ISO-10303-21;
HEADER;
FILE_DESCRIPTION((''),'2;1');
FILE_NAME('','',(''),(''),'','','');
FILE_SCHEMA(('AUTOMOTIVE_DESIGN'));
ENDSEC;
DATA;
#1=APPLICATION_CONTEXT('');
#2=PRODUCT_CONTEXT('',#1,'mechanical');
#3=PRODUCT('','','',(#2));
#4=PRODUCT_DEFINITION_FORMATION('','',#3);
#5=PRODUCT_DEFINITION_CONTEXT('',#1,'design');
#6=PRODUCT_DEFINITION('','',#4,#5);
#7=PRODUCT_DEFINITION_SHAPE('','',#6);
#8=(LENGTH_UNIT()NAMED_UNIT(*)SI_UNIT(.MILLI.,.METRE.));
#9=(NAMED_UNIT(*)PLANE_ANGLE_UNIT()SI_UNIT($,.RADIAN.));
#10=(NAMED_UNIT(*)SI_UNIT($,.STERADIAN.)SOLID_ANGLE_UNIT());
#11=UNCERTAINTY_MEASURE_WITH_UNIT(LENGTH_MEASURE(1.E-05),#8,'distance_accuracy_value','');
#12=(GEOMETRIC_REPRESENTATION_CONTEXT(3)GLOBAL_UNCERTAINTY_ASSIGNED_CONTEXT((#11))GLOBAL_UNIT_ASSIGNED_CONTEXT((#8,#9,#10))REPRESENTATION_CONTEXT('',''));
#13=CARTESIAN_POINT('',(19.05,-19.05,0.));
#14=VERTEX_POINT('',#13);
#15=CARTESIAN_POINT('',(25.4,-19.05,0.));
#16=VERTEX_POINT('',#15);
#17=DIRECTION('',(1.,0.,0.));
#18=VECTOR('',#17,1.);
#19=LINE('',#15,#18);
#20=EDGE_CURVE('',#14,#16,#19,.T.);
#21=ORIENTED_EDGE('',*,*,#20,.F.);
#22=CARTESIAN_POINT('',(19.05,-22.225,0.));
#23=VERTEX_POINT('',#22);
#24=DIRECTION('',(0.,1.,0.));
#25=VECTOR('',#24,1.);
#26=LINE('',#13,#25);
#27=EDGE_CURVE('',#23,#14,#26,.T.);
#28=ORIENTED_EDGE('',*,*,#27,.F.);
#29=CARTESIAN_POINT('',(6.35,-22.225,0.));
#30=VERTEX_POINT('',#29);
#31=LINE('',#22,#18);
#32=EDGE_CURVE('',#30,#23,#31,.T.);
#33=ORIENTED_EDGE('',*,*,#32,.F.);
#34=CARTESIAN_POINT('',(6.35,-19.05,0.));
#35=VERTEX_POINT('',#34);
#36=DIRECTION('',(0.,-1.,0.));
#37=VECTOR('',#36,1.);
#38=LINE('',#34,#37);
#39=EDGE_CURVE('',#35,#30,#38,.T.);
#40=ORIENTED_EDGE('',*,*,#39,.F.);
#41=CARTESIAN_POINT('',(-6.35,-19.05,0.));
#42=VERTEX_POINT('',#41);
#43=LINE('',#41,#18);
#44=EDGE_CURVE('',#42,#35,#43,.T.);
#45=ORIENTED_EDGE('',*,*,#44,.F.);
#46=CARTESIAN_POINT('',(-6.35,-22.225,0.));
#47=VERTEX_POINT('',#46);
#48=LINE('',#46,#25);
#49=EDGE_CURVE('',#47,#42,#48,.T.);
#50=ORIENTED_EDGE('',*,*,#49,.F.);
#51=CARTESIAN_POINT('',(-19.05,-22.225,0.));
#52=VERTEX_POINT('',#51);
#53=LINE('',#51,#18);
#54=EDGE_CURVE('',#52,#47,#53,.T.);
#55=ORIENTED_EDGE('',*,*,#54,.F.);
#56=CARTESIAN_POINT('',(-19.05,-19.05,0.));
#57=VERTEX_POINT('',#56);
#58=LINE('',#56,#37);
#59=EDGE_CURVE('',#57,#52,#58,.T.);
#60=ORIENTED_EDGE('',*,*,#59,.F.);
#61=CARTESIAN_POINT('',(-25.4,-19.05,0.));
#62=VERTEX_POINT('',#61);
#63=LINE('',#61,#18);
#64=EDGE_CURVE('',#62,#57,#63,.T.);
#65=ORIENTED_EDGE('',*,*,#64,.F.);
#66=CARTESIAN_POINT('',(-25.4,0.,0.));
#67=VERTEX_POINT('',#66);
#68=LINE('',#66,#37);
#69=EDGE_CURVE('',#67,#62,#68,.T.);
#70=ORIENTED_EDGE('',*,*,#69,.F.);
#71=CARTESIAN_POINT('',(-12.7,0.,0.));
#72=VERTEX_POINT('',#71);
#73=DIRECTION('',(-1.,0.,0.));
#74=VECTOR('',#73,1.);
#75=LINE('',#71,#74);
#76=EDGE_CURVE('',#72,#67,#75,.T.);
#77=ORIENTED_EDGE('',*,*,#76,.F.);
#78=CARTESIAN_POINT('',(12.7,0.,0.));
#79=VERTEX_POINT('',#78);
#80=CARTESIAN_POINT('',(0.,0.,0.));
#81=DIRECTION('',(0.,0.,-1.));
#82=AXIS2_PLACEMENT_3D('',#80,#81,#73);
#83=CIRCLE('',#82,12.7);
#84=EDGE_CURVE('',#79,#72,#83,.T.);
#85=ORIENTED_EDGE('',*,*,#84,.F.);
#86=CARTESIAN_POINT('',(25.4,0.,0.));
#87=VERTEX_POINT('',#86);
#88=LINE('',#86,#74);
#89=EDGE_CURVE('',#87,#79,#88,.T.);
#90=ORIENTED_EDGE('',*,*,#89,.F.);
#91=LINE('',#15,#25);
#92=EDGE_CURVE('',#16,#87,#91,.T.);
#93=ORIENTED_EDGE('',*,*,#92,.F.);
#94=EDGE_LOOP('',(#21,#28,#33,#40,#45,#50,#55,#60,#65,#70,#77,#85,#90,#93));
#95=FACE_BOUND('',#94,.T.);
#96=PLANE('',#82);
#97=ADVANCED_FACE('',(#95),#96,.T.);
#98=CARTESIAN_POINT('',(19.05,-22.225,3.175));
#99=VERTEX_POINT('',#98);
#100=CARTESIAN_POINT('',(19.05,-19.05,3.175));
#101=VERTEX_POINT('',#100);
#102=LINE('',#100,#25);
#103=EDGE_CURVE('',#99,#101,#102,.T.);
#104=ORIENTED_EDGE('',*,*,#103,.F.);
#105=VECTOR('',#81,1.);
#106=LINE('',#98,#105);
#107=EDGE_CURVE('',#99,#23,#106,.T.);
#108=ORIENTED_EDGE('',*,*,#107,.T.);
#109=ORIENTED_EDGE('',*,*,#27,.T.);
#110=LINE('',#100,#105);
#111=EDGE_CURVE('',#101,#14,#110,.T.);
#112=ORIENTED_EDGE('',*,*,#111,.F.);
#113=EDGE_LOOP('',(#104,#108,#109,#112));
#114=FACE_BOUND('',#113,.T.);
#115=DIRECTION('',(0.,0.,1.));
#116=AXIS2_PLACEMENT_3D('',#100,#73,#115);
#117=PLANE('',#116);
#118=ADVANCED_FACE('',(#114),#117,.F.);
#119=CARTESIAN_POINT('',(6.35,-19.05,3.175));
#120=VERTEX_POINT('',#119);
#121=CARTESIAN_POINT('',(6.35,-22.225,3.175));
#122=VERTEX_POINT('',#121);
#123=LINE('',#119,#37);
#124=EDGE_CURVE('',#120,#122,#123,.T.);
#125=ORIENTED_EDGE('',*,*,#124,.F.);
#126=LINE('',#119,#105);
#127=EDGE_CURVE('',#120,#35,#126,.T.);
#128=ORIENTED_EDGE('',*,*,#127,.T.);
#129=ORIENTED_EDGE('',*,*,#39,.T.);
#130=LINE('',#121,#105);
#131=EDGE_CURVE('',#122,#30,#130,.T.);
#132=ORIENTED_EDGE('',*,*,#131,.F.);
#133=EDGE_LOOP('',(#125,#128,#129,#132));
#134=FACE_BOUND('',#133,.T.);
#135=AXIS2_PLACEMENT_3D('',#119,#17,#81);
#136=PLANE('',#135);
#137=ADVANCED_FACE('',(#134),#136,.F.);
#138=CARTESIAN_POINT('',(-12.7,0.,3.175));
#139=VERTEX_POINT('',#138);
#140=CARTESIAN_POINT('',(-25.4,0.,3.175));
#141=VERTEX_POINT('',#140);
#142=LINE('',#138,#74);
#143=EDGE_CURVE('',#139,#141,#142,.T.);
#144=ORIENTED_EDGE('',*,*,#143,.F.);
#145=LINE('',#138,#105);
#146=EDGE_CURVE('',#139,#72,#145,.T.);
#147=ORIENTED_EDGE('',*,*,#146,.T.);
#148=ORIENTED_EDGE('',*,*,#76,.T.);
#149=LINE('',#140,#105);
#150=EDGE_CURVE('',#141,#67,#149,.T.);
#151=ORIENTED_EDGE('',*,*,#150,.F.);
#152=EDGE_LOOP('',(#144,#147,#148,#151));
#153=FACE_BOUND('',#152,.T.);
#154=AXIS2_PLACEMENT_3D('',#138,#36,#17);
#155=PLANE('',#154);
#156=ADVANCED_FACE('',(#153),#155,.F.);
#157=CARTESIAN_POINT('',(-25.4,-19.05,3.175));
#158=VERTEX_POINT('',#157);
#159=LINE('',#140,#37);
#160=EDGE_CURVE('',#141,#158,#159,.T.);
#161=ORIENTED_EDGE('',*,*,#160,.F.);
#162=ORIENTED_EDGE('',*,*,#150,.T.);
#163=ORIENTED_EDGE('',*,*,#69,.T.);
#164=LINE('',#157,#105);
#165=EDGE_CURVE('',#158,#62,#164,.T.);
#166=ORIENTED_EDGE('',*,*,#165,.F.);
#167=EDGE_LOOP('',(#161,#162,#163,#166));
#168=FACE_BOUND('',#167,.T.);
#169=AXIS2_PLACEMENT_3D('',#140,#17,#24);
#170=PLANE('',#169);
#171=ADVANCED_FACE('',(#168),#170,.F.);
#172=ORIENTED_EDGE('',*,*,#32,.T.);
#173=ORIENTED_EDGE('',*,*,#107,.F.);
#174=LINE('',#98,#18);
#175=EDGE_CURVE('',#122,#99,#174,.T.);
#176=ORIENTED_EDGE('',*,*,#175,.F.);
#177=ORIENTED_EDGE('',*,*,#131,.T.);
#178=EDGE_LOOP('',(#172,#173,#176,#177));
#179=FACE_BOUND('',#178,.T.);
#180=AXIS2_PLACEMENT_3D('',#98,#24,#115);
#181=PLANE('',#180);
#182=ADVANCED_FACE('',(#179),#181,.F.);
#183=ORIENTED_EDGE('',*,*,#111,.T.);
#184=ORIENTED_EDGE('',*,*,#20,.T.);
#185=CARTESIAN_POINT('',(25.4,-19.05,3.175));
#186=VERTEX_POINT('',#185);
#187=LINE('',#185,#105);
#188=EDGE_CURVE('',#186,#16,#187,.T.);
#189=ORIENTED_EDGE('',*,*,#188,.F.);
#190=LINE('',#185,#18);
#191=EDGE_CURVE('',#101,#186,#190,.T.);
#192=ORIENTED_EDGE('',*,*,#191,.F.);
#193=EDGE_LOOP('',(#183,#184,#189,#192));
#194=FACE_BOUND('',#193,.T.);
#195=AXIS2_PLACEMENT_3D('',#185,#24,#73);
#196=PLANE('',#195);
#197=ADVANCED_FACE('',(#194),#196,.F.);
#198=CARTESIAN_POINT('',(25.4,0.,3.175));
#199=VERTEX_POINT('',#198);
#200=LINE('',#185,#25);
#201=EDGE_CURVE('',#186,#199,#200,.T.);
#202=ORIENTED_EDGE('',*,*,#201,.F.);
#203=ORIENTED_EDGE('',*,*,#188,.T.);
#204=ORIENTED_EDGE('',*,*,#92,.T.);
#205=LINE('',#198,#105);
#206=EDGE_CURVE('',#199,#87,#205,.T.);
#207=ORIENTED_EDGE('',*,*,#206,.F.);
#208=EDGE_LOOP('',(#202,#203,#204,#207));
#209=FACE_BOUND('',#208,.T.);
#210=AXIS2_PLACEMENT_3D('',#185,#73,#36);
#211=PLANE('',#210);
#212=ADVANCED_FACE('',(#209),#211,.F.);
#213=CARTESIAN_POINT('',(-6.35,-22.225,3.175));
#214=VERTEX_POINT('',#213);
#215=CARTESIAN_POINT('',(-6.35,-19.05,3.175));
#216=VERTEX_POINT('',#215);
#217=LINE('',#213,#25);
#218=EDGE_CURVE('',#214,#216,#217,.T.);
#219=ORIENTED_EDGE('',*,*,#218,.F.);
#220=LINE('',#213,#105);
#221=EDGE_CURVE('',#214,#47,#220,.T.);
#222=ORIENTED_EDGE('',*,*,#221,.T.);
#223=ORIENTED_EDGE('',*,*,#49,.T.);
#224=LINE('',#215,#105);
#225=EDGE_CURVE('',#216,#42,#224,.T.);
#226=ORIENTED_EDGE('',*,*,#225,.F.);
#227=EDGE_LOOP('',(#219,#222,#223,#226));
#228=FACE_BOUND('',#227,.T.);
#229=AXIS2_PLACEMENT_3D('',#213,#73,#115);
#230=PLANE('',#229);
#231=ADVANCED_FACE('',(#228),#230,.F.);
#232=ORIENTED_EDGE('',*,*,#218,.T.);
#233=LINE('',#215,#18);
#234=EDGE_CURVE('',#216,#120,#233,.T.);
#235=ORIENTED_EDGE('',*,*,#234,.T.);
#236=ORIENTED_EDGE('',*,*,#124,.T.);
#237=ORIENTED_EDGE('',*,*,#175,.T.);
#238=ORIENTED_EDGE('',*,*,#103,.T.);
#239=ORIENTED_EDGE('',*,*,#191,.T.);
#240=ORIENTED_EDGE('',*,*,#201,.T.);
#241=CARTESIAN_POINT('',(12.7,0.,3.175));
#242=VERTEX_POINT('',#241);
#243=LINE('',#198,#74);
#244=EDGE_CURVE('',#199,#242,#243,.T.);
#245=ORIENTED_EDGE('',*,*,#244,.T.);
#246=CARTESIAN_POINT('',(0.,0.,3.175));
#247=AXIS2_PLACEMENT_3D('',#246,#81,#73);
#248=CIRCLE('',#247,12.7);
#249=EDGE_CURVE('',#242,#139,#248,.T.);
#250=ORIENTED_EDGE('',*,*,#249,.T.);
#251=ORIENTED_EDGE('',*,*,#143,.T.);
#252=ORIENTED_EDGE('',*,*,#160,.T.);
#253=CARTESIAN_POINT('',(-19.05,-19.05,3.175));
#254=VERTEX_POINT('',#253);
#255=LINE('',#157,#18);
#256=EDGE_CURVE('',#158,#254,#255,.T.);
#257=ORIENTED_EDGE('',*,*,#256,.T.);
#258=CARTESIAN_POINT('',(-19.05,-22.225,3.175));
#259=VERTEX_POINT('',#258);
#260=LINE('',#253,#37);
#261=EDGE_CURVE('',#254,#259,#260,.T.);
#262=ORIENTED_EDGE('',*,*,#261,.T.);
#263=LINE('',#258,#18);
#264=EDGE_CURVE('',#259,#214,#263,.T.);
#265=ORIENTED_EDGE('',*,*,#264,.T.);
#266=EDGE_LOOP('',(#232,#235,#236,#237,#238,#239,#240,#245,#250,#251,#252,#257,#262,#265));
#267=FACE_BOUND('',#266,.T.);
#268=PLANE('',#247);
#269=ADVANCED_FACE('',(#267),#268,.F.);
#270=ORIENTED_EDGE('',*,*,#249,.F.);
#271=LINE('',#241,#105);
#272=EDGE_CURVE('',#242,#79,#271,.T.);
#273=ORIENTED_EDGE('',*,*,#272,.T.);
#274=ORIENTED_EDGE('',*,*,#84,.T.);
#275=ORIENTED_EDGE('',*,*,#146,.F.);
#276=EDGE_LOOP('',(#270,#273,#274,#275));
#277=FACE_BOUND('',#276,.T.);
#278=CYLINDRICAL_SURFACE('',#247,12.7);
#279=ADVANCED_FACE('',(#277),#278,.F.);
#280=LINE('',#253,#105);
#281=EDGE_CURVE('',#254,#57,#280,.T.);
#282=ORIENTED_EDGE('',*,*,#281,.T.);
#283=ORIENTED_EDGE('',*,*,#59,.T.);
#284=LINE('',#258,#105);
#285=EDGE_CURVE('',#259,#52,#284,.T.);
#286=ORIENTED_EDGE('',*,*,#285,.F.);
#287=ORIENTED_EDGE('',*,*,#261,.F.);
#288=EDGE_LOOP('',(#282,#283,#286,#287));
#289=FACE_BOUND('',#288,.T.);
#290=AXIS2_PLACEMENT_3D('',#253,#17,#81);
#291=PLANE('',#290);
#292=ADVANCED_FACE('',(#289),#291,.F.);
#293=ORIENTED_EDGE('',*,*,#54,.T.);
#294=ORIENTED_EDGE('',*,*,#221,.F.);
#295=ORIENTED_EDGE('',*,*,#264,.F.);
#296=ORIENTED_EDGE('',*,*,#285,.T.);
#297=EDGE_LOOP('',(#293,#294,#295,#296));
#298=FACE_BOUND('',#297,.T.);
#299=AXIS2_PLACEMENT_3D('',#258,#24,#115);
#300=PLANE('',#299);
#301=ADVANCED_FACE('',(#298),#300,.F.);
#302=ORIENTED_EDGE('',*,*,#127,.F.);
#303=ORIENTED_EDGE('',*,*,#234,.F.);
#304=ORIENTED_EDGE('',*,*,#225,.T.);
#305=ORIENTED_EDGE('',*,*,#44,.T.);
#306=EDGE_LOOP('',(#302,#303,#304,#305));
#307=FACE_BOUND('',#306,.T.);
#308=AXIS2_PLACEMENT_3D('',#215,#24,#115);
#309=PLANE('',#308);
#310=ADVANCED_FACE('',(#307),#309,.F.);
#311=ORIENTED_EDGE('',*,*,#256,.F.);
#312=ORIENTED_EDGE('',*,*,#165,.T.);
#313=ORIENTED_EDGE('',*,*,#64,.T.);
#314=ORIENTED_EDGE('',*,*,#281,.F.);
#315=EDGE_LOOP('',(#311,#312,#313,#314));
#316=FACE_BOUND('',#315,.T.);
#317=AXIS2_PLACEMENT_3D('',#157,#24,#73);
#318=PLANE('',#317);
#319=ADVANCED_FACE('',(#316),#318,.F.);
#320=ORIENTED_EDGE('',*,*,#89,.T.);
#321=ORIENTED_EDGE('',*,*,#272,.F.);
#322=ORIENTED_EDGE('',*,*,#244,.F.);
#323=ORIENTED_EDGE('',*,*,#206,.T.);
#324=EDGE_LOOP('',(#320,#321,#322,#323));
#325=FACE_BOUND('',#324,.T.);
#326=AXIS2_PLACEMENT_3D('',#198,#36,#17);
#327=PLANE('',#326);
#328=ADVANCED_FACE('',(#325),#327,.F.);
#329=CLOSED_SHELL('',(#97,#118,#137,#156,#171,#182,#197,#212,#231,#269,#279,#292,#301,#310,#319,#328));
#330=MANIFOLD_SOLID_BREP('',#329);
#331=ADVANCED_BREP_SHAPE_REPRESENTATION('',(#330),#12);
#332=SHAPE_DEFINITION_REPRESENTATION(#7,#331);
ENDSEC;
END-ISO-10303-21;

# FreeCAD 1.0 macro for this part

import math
import FreeCAD as App
import Part
import Sketcher
from FreeCAD import Vector
Q = App.Units.Quantity

doc = App.newDocument("Part")
body = doc.addObject("PartDesign::Body", "Body")

# Sketch on XY plane
sketch1 = body.newObject("Sketcher::SketchObject", "Sketch")
sketch1.AttachmentSupport = (doc.getObject("XY_Plane"), [""])
sketch1.MapMode = "FlatFace"
sketch1.addGeometry(Part.LineSegment(Vector(-12.7, 0, 0), Vector(-25.4, 0, 0)), False)
sketch1.addGeometry(Part.LineSegment(Vector(-25.4, 0, 0), Vector(-25.4, -19.1, 0)), False)
sketch1.addGeometry(Part.LineSegment(Vector(-25.4, -19.1, 0), Vector(-19.1, -19.1, 0)), False)
sketch1.addGeometry(Part.LineSegment(Vector(-19.1, -19.1, 0), Vector(-19.1, -22.2, 0)), False)
sketch1.addGeometry(Part.LineSegment(Vector(-19.1, -22.2, 0), Vector(-6.3, -22.2, 0)), False)
sketch1.addGeometry(Part.LineSegment(Vector(-6.3, -22.2, 0), Vector(-6.3, -19.1, 0)), False)
sketch1.addGeometry(Part.LineSegment(Vector(-6.3, -19.1, 0), Vector(6.3, -19.1, 0)), False)
sketch1.addGeometry(Part.LineSegment(Vector(6.3, -19.1, 0), Vector(6.3, -22.2, 0)), False)
sketch1.addGeometry(Part.LineSegment(Vector(6.3, -22.2, 0), Vector(19.1, -22.2, 0)), False)
sketch1.addGeometry(Part.LineSegment(Vector(19.1, -22.2, 0), Vector(19.1, -19.1, 0)), False)
sketch1.addGeometry(Part.LineSegment(Vector(19.1, -19.1, 0), Vector(25.4, -19.1, 0)), False)
sketch1.addGeometry(Part.LineSegment(Vector(25.4, -19.1, 0), Vector(25.4, 0, 0)), False)
sketch1.addGeometry(Part.LineSegment(Vector(25.4, 0, 0), Vector(12.7, 0, 0)), False)
sketch1.addGeometry(Part.ArcOfCircle(Part.Circle(Vector(0, 0, 0), Vector(0, 0, 1), 12.7), math.radians(180), math.radians(360)), False)
sketch1.addConstraint(Sketcher.Constraint("Coincident", 0, 2, 1, 1))
sketch1.addConstraint(Sketcher.Constraint("Coincident", 1, 2, 2, 1))
sketch1.addConstraint(Sketcher.Constraint("Coincident", 2, 2, 3, 1))
sketch1.addConstraint(Sketcher.Constraint("Coincident", 3, 2, 4, 1))
sketch1.addConstraint(Sketcher.Constraint("Coincident", 4, 2, 5, 1))
sketch1.addConstraint(Sketcher.Constraint("Coincident", 5, 2, 6, 1))
sketch1.addConstraint(Sketcher.Constraint("Coincident", 6, 2, 7, 1))
sketch1.addConstraint(Sketcher.Constraint("Coincident", 7, 2, 8, 1))
sketch1.addConstraint(Sketcher.Constraint("Coincident", 8, 2, 9, 1))
sketch1.addConstraint(Sketcher.Constraint("Coincident", 9, 2, 10, 1))
sketch1.addConstraint(Sketcher.Constraint("Coincident", 10, 2, 11, 1))
sketch1.addConstraint(Sketcher.Constraint("Coincident", 11, 2, 12, 1))
sketch1.addConstraint(Sketcher.Constraint("Coincident", 12, 2, 13, 2))
sketch1.addConstraint(Sketcher.Constraint("Coincident", 13, 1, 0, 1))
sketch1.addConstraint(Sketcher.Constraint("Horizontal", 0))
sketch1.addConstraint(Sketcher.Constraint("Vertical", 1))
sketch1.addConstraint(Sketcher.Constraint("Horizontal", 2))
sketch1.addConstraint(Sketcher.Constraint("Vertical", 3))
sketch1.addConstraint(Sketcher.Constraint("Horizontal", 4))
sketch1.addConstraint(Sketcher.Constraint("Vertical", 5))
sketch1.addConstraint(Sketcher.Constraint("Horizontal", 6))
sketch1.addConstraint(Sketcher.Constraint("Vertical", 7))
sketch1.addConstraint(Sketcher.Constraint("Horizontal", 8))
sketch1.addConstraint(Sketcher.Constraint("Vertical", 9))
sketch1.addConstraint(Sketcher.Constraint("Horizontal", 10))
sketch1.addConstraint(Sketcher.Constraint("Vertical", 11))
sketch1.addConstraint(Sketcher.Constraint("Horizontal", 12))
sketch1.addConstraint(Sketcher.Constraint("Coincident", 13, 3, -1, 1))
sketch1.addConstraint(Sketcher.Constraint("Symmetric", 0, 2, 11, 2, -1, 1))
sketch1.addConstraint(Sketcher.Constraint("Symmetric", 4, 2, 7, 2, -2))
sketch1.addConstraint(Sketcher.Constraint("Symmetric", 2, 2, 9, 2, -2))
sketch1.addConstraint(Sketcher.Constraint("PointOnObject", 0, 2, -1))
sketch1.addConstraint(Sketcher.Constraint("Horizontal", 2, 2, 5, 2))
sketch1.addConstraint(Sketcher.Constraint("Equal", 0, 4))
sketch1.addConstraint(Sketcher.Constraint("Equal", 4, 6))
sketch1.addConstraint(Sketcher.Constraint("Radius", 13, Q("0.5 in")))
sketch1.addConstraint(Sketcher.Constraint("DistanceX", 0, 2, 0, 1, Q("0.5 in")))
sketch1.addConstraint(Sketcher.Constraint("DistanceY", 1, 2, 1, 1, Q("0.75 in")))
sketch1.addConstraint(Sketcher.Constraint("DistanceY", 3, 2, 3, 1, Q("0.125 in")))
pad1 = body.newObject("PartDesign::Pad", "Pad")
pad1.Profile = sketch1
pad1.Length = Q("0.125 in")

doc.recompute()
